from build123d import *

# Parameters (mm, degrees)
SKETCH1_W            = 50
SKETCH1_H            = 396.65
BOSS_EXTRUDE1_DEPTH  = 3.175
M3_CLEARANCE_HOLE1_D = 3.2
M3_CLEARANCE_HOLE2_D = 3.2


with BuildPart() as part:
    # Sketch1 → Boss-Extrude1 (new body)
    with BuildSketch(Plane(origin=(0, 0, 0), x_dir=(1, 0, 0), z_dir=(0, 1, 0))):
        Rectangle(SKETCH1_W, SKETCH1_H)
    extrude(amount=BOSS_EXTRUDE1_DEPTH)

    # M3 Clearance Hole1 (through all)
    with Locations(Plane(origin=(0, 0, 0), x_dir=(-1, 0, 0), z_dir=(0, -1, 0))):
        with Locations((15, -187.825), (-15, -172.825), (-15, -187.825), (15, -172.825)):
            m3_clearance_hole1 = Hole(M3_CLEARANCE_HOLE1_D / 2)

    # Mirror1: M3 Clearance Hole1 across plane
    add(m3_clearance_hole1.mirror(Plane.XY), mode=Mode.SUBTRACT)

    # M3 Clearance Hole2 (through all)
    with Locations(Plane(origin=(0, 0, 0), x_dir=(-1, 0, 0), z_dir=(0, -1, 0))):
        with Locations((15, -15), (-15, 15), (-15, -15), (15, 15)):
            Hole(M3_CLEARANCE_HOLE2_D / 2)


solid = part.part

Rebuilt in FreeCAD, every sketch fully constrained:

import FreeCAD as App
import Part
import Sketcher
Q = App.Units.Quantity


def add_polygon(sketch, points):
    """Adds a closed chain of lines whose ends are joined by coincident constraints."""
    first, n = sketch.GeometryCount, len(points)
    for a, b in zip(points, points[1:] + points[:1]):
        sketch.addGeometry(Part.LineSegment(App.Vector(*a, 0), App.Vector(*b, 0)), False)
    for i in range(n):
        sketch.addConstraint(Sketcher.Constraint("Coincident", first + i, 2, first + (i + 1) % n, 1))

doc = App.newDocument("Part")
body = doc.addObject("PartDesign::Body", "Body")

sketch1 = body.newObject("Sketcher::SketchObject", "Sketch")
sketch1.AttachmentSupport = (doc.getObject("XZ_Plane"), [""])
sketch1.MapMode = "FlatFace"
add_polygon(sketch1, [(-25, -198), (-25, 198), (25, 198), (25, -198)])
sketch1.addConstraint(Sketcher.Constraint("Vertical", 0))
sketch1.addConstraint(Sketcher.Constraint("Horizontal", 1))
sketch1.addConstraint(Sketcher.Constraint("Vertical", 2))
sketch1.addConstraint(Sketcher.Constraint("Horizontal", 3))
sketch1.addConstraint(Sketcher.Constraint("Symmetric", 0, 2, 2, 2, -1, 1))
sketch1.addConstraint(Sketcher.Constraint("DistanceX", 1, 1, 1, 2, Q("50 mm")))
sketch1.addConstraint(Sketcher.Constraint("DistanceY", 0, 1, 0, 2, Q("396.65 mm")))
pad1 = body.newObject("PartDesign::Pad", "Pad")
pad1.Profile = sketch1
pad1.Length = 3.175
pad1.Reversed = True

sketch2 = body.newObject("Sketcher::SketchObject", "Sketch001")
sketch2.AttachmentSupport = (doc.getObject("XZ_Plane"), [""])
sketch2.MapMode = "FlatFace"
sketch2.addGeometry(Part.Circle(App.Vector(-15, 187.8, 0), App.Vector(0, 0, 1), 1.6), False)
sketch2.addGeometry(Part.Circle(App.Vector(15, 172.8, 0), App.Vector(0, 0, 1), 1.6), False)
sketch2.addGeometry(Part.Circle(App.Vector(15, 187.8, 0), App.Vector(0, 0, 1), 1.6), False)
sketch2.addGeometry(Part.Circle(App.Vector(-15, 172.8, 0), App.Vector(0, 0, 1), 1.6), False)
sketch2.addConstraint(Sketcher.Constraint("Equal", 0, 1))
sketch2.addConstraint(Sketcher.Constraint("Equal", 1, 2))
sketch2.addConstraint(Sketcher.Constraint("Equal", 2, 3))
sketch2.addConstraint(Sketcher.Constraint("Symmetric", 0, 3, 2, 3, -2))
sketch2.addConstraint(Sketcher.Constraint("Symmetric", 1, 3, 3, 3, -2))
sketch2.addConstraint(Sketcher.Constraint("Vertical", 1, 3, 2, 3))
sketch2.addConstraint(Sketcher.Constraint("Diameter", 0, Q("3.2 mm")))
sketch2.addConstraint(Sketcher.Constraint("DistanceX", 0, 3, -1, 1, Q("15 mm")))
sketch2.addConstraint(Sketcher.Constraint("DistanceY", 1, 3, 0, 3, Q("15 mm")))
sketch2.addConstraint(Sketcher.Constraint("DistanceY", -1, 1, 0, 3, Q("187.825 mm")))
doc.recompute()
hole = body.newObject("PartDesign::Hole", "Hole")
hole.Profile = sketch2
hole.ThreadType = "None"
hole.Diameter = 3.2
hole.DepthType = "ThroughAll"
doc.recompute()

mirrored = body.newObject("PartDesign::Mirrored", "Mirrored")
mirrored.Originals = [hole]
mirrored.MirrorPlane = (doc.getObject("XY_Plane"), [""])
body.Tip = mirrored

sketch3 = body.newObject("Sketcher::SketchObject", "Sketch002")
sketch3.AttachmentSupport = (doc.getObject("XZ_Plane"), [""])
sketch3.MapMode = "FlatFace"
sketch3.addGeometry(Part.Circle(App.Vector(-15, 15, 0), App.Vector(0, 0, 1), 1.6), False)
sketch3.addGeometry(Part.Circle(App.Vector(15, -15, 0), App.Vector(0, 0, 1), 1.6), False)
sketch3.addGeometry(Part.Circle(App.Vector(15, 15, 0), App.Vector(0, 0, 1), 1.6), False)
sketch3.addGeometry(Part.Circle(App.Vector(-15, -15, 0), App.Vector(0, 0, 1), 1.6), False)
sketch3.addConstraint(Sketcher.Constraint("Equal", 0, 1))
sketch3.addConstraint(Sketcher.Constraint("Equal", 1, 2))
sketch3.addConstraint(Sketcher.Constraint("Equal", 2, 3))
sketch3.addConstraint(Sketcher.Constraint("Symmetric", 0, 3, 1, 3, -1, 1))
sketch3.addConstraint(Sketcher.Constraint("Symmetric", 2, 3, 3, 3, -1, 1))
sketch3.addConstraint(Sketcher.Constraint("Symmetric", 0, 3, 2, 3, -2))
sketch3.addConstraint(Sketcher.Constraint("Diameter", 0, Q("3.2 mm")))
sketch3.addConstraint(Sketcher.Constraint("DistanceX", 0, 3, -1, 1, Q("15 mm")))
sketch3.addConstraint(Sketcher.Constraint("DistanceY", -1, 1, 0, 3, Q("15 mm")))
doc.recompute()
hole2 = body.newObject("PartDesign::Hole", "Hole001")
hole2.Profile = sketch3
hole2.ThreadType = "None"
hole2.Diameter = 3.2
hole2.DepthType = "ThroughAll"

doc.recompute()
